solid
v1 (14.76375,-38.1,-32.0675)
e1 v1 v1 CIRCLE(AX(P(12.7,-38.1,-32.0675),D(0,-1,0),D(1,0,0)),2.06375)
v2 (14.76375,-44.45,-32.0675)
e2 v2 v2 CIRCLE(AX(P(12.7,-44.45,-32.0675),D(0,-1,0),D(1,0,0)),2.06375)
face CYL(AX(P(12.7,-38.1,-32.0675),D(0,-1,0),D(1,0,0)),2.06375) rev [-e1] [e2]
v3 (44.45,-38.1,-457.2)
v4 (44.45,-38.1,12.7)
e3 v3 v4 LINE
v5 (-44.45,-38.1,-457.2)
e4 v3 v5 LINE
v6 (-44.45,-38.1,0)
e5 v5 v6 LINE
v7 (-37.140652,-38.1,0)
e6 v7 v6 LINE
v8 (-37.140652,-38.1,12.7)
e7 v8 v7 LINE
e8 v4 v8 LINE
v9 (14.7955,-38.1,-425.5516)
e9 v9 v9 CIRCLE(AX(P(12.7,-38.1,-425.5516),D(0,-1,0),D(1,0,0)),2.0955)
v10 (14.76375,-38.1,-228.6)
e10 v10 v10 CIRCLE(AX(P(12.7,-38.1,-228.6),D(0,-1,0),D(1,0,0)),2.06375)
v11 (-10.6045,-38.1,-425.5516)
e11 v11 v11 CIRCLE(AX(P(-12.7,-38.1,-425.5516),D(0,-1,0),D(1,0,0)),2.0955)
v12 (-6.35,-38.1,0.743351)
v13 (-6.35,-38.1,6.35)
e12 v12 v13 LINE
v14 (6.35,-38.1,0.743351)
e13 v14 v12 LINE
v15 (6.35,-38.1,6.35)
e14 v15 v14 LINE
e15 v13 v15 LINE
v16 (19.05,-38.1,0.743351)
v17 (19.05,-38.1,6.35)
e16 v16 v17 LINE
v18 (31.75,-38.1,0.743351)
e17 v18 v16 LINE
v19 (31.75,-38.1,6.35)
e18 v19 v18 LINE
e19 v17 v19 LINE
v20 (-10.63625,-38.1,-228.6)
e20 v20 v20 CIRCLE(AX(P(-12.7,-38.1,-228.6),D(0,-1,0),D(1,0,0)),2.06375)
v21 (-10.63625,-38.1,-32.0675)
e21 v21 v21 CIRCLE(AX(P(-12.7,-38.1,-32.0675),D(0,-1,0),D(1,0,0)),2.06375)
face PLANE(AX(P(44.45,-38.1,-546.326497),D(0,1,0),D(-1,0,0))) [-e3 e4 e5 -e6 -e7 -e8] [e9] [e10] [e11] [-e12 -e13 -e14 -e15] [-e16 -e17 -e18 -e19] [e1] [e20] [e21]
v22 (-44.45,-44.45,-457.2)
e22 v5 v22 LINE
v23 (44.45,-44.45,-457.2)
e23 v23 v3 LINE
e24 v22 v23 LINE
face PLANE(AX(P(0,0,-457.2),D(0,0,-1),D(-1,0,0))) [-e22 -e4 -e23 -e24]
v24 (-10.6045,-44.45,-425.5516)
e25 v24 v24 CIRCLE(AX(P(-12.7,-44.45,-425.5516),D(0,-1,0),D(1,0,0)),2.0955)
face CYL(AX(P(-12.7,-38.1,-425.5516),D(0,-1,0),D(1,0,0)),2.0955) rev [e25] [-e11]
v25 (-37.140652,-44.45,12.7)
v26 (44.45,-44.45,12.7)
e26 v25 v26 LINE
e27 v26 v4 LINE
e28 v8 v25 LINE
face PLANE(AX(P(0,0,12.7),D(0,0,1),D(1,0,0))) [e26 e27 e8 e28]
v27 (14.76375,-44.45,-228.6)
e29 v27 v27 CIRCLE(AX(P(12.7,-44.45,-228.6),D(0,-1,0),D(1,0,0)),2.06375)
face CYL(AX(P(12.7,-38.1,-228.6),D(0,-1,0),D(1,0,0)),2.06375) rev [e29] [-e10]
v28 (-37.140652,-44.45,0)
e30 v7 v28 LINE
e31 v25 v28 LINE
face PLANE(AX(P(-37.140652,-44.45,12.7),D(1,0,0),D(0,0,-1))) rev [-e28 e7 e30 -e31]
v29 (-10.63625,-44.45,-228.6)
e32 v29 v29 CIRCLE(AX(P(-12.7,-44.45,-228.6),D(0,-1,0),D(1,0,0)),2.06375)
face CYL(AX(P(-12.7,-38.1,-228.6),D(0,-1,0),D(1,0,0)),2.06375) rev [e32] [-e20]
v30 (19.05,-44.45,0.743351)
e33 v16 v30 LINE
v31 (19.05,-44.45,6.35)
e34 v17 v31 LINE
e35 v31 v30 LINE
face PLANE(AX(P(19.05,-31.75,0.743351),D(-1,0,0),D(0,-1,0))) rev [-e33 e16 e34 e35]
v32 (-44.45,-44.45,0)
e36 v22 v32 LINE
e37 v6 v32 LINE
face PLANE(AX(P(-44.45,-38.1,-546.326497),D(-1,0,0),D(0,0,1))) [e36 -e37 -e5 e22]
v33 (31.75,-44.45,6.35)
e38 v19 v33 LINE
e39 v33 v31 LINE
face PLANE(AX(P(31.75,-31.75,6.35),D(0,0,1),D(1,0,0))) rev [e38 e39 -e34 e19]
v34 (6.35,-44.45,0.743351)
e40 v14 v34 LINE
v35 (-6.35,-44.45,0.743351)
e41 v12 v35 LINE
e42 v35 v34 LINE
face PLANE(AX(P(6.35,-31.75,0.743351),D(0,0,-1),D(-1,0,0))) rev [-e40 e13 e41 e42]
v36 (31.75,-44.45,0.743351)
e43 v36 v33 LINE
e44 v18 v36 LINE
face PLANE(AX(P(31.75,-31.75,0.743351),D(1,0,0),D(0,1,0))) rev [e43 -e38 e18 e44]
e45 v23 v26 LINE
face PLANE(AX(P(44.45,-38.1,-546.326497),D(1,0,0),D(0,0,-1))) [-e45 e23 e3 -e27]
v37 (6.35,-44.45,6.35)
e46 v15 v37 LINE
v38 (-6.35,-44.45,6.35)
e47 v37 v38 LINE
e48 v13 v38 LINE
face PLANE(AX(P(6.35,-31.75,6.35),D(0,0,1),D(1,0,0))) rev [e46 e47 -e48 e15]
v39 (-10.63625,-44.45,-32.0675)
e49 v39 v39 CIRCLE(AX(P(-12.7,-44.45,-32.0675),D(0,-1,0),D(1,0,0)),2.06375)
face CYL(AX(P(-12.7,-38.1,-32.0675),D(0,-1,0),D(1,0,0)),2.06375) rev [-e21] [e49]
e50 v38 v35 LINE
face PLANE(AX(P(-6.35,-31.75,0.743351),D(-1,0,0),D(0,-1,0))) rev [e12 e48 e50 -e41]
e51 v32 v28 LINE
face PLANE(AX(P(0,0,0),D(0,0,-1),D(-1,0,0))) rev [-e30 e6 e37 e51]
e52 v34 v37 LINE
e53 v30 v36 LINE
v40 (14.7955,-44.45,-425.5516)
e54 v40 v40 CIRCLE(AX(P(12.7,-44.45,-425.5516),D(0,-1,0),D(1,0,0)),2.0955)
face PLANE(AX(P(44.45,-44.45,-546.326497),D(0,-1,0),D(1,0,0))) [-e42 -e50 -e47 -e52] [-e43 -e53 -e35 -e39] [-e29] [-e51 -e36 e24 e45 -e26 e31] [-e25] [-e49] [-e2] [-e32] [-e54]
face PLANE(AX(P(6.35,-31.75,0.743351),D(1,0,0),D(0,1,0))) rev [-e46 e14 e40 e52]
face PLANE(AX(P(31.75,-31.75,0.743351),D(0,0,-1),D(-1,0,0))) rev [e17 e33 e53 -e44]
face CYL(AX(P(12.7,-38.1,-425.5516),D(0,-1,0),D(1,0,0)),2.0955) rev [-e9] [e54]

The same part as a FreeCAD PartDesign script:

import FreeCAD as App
import Part
import Sketcher
from FreeCAD import Vector
Q = App.Units.Quantity

doc = App.newDocument("Part")
body = doc.addObject("PartDesign::Body", "Body")

sketch1 = body.newObject("Sketcher::SketchObject", "Sketch")
sketch1.AttachmentSupport = (doc.getObject("XY_Plane"), [""])
sketch1.MapMode = "FlatFace"
sketch1.addGeometry([
    Part.LineSegment(Vector(-44, -38, 0), Vector(-44, -44, 0)),
    Part.LineSegment(Vector(-44, -44, 0), Vector(44, -44, 0)),
    Part.LineSegment(Vector(44, -44, 0), Vector(44, -38, 0)),
    Part.LineSegment(Vector(44, -38, 0), Vector(-44, -38, 0)),
], False)
sketch1.addConstraint([
    Sketcher.Constraint("Coincident", 0, 2, 1, 1),
    Sketcher.Constraint("Coincident", 1, 2, 2, 1),
    Sketcher.Constraint("Coincident", 2, 2, 3, 1),
    Sketcher.Constraint("Coincident", 3, 2, 0, 1),
    Sketcher.Constraint("Vertical", 0),
    Sketcher.Constraint("Horizontal", 1),
    Sketcher.Constraint("Vertical", 2),
    Sketcher.Constraint("Horizontal", 3),
    Sketcher.Constraint("DistanceX", 1, 1, 1, 2, Q("3.5 in")),
    Sketcher.Constraint("DistanceY", 0, 2, 0, 1, Q("0.25 in")),
    Sketcher.Constraint("DistanceY", 2, 2, -1, 1, Q("1.5 in")),
    Sketcher.Constraint("DistanceX", 0, 2, -1, 1, Q("1.75 in")),
])
pad1 = body.newObject("PartDesign::Pad", "Pad")
pad1.Profile = sketch1
pad1.Length = Q("18 in")
pad1.Reversed = True

sketch2 = body.newObject("Sketcher::SketchObject", "Sketch001")
sketch2.AttachmentSupport = (doc.getObject("XZ_Plane"), [""])
sketch2.MapMode = "FlatFace"
sketch2.AttachmentOffset = App.Placement(Vector(0, 0, 1.75 * 25.4), App.Rotation())
sketch2.addGeometry([
    Part.Circle(Vector(-12.7, -228.6, 0), Vector(0, 0, 1), 2.1),
    Part.Circle(Vector(12.7, -228.6, 0), Vector(0, 0, 1), 2.1),
    Part.Circle(Vector(-12.7, -32.1, 0), Vector(0, 0, 1), 2.1),
    Part.Circle(Vector(12.7, -32.1, 0), Vector(0, 0, 1), 2.1),
], False)
sketch2.addConstraint([
    Sketcher.Constraint("Equal", 0, 1),
    Sketcher.Constraint("Equal", 1, 2),
    Sketcher.Constraint("Equal", 2, 3),
    Sketcher.Constraint("Symmetric", 0, 3, 1, 3, -2),
    Sketcher.Constraint("Symmetric", 2, 3, 3, 3, -2),
    Sketcher.Constraint("Vertical", 0, 3, 2, 3),
    Sketcher.Constraint("DistanceY", 0, 3, -1, 1, Q("9 in")),
    Sketcher.Constraint("DistanceX", 0, 3, 1, 3, Q("1 in")),
    Sketcher.Constraint("Diameter", 0, Q("0.1625 in")),
    Sketcher.Constraint("DistanceY", 2, 3, -1, 1, Q("1.2625 in")),
])
pocket1 = body.newObject("PartDesign::Pocket", "Pocket")
pocket1.Profile = sketch2
pocket1.Type = "ThroughAll"

sketch3 = body.newObject("Sketcher::SketchObject", "Sketch002")
sketch3.AttachmentSupport = (doc.getObject("XZ_Plane"), [""])
sketch3.MapMode = "FlatFace"
sketch3.AttachmentOffset = App.Placement(Vector(0, 0, 1.75 * 25.4), App.Rotation())
sketch3.addGeometry([
    Part.Circle(Vector(-12.7, -425.6, 0), Vector(0, 0, 1), 2.1),
    Part.Circle(Vector(12.7, -425.6, 0), Vector(0, 0, 1), 2.1),
], False)
sketch3.addConstraint([
    Sketcher.Constraint("Equal", 0, 1),
    Sketcher.Constraint("Symmetric", 0, 3, 1, 3, -2),
    Sketcher.Constraint("Diameter", 0, Q("0.165 in")),
    Sketcher.Constraint("DistanceX", 0, 3, 1, 3, Q("1 in")),
    Sketcher.Constraint("DistanceY", 0, 3, -1, 1, Q("16.754 in")),
])
pocket2 = body.newObject("PartDesign::Pocket", "Pocket001")
pocket2.Profile = sketch3
pocket2.Type = "ThroughAll"

sketch4 = body.newObject("Sketcher::SketchObject", "Sketch003")
sketch4.AttachmentSupport = (doc.getObject("XY_Plane"), [""])
sketch4.MapMode = "FlatFace"
sketch4.addGeometry([
    Part.LineSegment(Vector(-37, -38, 0), Vector(-37, -44, 0)),
    Part.LineSegment(Vector(-37, -44, 0), Vector(44, -44, 0)),
    Part.LineSegment(Vector(44, -44, 0), Vector(44, -38, 0)),
    Part.LineSegment(Vector(44, -38, 0), Vector(-37, -38, 0)),
], False)
sketch4.addConstraint([
    Sketcher.Constraint("Coincident", 0, 2, 1, 1),
    Sketcher.Constraint("Coincident", 1, 2, 2, 1),
    Sketcher.Constraint("Coincident", 2, 2, 3, 1),
    Sketcher.Constraint("Coincident", 3, 2, 0, 1),
    Sketcher.Constraint("Vertical", 0),
    Sketcher.Constraint("Horizontal", 1),
    Sketcher.Constraint("Vertical", 2),
    Sketcher.Constraint("Horizontal", 3),
    Sketcher.Constraint("DistanceY", 0, 2, 0, 1, Q("0.25 in")),
    Sketcher.Constraint("DistanceY", 2, 2, -1, 1, Q("1.5 in")),
    Sketcher.Constraint("DistanceX", -1, 1, 1, 2, Q("1.75 in")),
    Sketcher.Constraint("DistanceX", 1, 1, 1, 2, 81.590652),
])
pad2 = body.newObject("PartDesign::Pad", "Pad001")
pad2.Profile = sketch4
pad2.Length = Q("0.5 in")

sketch5 = body.newObject("Sketcher::SketchObject", "Sketch004")
sketch5.AttachmentSupport = (doc.getObject("XZ_Plane"), [""])
sketch5.MapMode = "FlatFace"
sketch5.AttachmentOffset = App.Placement(Vector(0, 0, 1.75 * 25.4), App.Rotation())
sketch5.addGeometry([
    Part.LineSegment(Vector(19, 6, 0), Vector(19, 1, 0)),
    Part.LineSegment(Vector(19, 1, 0), Vector(32, 1, 0)),
    Part.LineSegment(Vector(32, 1, 0), Vector(32, 6, 0)),
    Part.LineSegment(Vector(32, 6, 0), Vector(19, 6, 0)),
    Part.LineSegment(Vector(-6, 6, 0), Vector(-6, 1, 0)),
    Part.LineSegment(Vector(-6, 1, 0), Vector(6, 1, 0)),
    Part.LineSegment(Vector(6, 1, 0), Vector(6, 6, 0)),
    Part.LineSegment(Vector(6, 6, 0), Vector(-6, 6, 0)),
], False)
sketch5.addConstraint([
    Sketcher.Constraint("Coincident", 0, 2, 1, 1),
    Sketcher.Constraint("Coincident", 1, 2, 2, 1),
    Sketcher.Constraint("Coincident", 2, 2, 3, 1),
    Sketcher.Constraint("Coincident", 3, 2, 0, 1),
    Sketcher.Constraint("Coincident", 4, 2, 5, 1),
    Sketcher.Constraint("Coincident", 5, 2, 6, 1),
    Sketcher.Constraint("Coincident", 6, 2, 7, 1),
    Sketcher.Constraint("Coincident", 7, 2, 4, 1),
    Sketcher.Constraint("Vertical", 0),
    Sketcher.Constraint("Horizontal", 1),
    Sketcher.Constraint("Vertical", 2),
    Sketcher.Constraint("Horizontal", 3),
    Sketcher.Constraint("Vertical", 4),
    Sketcher.Constraint("Horizontal", 5),
    Sketcher.Constraint("Vertical", 6),
    Sketcher.Constraint("Horizontal", 7),
    Sketcher.Constraint("Horizontal", 1, 2, 4, 2),
    Sketcher.Constraint("Horizontal", 3, 2, 6, 2),
    Sketcher.Constraint("Equal", 3, 5),
    Sketcher.Constraint("DistanceX", 1, 1, 1, 2, Q("0.5 in")),
    Sketcher.Constraint("DistanceX", 4, 2, 0, 2, Q("1 in")),
    Sketcher.Constraint("DistanceX", -1, 1, 0, 2, Q("0.75 in")),
    Sketcher.Constraint("DistanceY", -1, 1, 2, 2, Q("0.25 in")),
    Sketcher.Constraint("DistanceY", 0, 2, 0, 1, 5.606649),
])
pocket3 = body.newObject("PartDesign::Pocket", "Pocket002")
pocket3.Profile = sketch5
pocket3.Length = Q("0.5 in")

doc.recompute()
